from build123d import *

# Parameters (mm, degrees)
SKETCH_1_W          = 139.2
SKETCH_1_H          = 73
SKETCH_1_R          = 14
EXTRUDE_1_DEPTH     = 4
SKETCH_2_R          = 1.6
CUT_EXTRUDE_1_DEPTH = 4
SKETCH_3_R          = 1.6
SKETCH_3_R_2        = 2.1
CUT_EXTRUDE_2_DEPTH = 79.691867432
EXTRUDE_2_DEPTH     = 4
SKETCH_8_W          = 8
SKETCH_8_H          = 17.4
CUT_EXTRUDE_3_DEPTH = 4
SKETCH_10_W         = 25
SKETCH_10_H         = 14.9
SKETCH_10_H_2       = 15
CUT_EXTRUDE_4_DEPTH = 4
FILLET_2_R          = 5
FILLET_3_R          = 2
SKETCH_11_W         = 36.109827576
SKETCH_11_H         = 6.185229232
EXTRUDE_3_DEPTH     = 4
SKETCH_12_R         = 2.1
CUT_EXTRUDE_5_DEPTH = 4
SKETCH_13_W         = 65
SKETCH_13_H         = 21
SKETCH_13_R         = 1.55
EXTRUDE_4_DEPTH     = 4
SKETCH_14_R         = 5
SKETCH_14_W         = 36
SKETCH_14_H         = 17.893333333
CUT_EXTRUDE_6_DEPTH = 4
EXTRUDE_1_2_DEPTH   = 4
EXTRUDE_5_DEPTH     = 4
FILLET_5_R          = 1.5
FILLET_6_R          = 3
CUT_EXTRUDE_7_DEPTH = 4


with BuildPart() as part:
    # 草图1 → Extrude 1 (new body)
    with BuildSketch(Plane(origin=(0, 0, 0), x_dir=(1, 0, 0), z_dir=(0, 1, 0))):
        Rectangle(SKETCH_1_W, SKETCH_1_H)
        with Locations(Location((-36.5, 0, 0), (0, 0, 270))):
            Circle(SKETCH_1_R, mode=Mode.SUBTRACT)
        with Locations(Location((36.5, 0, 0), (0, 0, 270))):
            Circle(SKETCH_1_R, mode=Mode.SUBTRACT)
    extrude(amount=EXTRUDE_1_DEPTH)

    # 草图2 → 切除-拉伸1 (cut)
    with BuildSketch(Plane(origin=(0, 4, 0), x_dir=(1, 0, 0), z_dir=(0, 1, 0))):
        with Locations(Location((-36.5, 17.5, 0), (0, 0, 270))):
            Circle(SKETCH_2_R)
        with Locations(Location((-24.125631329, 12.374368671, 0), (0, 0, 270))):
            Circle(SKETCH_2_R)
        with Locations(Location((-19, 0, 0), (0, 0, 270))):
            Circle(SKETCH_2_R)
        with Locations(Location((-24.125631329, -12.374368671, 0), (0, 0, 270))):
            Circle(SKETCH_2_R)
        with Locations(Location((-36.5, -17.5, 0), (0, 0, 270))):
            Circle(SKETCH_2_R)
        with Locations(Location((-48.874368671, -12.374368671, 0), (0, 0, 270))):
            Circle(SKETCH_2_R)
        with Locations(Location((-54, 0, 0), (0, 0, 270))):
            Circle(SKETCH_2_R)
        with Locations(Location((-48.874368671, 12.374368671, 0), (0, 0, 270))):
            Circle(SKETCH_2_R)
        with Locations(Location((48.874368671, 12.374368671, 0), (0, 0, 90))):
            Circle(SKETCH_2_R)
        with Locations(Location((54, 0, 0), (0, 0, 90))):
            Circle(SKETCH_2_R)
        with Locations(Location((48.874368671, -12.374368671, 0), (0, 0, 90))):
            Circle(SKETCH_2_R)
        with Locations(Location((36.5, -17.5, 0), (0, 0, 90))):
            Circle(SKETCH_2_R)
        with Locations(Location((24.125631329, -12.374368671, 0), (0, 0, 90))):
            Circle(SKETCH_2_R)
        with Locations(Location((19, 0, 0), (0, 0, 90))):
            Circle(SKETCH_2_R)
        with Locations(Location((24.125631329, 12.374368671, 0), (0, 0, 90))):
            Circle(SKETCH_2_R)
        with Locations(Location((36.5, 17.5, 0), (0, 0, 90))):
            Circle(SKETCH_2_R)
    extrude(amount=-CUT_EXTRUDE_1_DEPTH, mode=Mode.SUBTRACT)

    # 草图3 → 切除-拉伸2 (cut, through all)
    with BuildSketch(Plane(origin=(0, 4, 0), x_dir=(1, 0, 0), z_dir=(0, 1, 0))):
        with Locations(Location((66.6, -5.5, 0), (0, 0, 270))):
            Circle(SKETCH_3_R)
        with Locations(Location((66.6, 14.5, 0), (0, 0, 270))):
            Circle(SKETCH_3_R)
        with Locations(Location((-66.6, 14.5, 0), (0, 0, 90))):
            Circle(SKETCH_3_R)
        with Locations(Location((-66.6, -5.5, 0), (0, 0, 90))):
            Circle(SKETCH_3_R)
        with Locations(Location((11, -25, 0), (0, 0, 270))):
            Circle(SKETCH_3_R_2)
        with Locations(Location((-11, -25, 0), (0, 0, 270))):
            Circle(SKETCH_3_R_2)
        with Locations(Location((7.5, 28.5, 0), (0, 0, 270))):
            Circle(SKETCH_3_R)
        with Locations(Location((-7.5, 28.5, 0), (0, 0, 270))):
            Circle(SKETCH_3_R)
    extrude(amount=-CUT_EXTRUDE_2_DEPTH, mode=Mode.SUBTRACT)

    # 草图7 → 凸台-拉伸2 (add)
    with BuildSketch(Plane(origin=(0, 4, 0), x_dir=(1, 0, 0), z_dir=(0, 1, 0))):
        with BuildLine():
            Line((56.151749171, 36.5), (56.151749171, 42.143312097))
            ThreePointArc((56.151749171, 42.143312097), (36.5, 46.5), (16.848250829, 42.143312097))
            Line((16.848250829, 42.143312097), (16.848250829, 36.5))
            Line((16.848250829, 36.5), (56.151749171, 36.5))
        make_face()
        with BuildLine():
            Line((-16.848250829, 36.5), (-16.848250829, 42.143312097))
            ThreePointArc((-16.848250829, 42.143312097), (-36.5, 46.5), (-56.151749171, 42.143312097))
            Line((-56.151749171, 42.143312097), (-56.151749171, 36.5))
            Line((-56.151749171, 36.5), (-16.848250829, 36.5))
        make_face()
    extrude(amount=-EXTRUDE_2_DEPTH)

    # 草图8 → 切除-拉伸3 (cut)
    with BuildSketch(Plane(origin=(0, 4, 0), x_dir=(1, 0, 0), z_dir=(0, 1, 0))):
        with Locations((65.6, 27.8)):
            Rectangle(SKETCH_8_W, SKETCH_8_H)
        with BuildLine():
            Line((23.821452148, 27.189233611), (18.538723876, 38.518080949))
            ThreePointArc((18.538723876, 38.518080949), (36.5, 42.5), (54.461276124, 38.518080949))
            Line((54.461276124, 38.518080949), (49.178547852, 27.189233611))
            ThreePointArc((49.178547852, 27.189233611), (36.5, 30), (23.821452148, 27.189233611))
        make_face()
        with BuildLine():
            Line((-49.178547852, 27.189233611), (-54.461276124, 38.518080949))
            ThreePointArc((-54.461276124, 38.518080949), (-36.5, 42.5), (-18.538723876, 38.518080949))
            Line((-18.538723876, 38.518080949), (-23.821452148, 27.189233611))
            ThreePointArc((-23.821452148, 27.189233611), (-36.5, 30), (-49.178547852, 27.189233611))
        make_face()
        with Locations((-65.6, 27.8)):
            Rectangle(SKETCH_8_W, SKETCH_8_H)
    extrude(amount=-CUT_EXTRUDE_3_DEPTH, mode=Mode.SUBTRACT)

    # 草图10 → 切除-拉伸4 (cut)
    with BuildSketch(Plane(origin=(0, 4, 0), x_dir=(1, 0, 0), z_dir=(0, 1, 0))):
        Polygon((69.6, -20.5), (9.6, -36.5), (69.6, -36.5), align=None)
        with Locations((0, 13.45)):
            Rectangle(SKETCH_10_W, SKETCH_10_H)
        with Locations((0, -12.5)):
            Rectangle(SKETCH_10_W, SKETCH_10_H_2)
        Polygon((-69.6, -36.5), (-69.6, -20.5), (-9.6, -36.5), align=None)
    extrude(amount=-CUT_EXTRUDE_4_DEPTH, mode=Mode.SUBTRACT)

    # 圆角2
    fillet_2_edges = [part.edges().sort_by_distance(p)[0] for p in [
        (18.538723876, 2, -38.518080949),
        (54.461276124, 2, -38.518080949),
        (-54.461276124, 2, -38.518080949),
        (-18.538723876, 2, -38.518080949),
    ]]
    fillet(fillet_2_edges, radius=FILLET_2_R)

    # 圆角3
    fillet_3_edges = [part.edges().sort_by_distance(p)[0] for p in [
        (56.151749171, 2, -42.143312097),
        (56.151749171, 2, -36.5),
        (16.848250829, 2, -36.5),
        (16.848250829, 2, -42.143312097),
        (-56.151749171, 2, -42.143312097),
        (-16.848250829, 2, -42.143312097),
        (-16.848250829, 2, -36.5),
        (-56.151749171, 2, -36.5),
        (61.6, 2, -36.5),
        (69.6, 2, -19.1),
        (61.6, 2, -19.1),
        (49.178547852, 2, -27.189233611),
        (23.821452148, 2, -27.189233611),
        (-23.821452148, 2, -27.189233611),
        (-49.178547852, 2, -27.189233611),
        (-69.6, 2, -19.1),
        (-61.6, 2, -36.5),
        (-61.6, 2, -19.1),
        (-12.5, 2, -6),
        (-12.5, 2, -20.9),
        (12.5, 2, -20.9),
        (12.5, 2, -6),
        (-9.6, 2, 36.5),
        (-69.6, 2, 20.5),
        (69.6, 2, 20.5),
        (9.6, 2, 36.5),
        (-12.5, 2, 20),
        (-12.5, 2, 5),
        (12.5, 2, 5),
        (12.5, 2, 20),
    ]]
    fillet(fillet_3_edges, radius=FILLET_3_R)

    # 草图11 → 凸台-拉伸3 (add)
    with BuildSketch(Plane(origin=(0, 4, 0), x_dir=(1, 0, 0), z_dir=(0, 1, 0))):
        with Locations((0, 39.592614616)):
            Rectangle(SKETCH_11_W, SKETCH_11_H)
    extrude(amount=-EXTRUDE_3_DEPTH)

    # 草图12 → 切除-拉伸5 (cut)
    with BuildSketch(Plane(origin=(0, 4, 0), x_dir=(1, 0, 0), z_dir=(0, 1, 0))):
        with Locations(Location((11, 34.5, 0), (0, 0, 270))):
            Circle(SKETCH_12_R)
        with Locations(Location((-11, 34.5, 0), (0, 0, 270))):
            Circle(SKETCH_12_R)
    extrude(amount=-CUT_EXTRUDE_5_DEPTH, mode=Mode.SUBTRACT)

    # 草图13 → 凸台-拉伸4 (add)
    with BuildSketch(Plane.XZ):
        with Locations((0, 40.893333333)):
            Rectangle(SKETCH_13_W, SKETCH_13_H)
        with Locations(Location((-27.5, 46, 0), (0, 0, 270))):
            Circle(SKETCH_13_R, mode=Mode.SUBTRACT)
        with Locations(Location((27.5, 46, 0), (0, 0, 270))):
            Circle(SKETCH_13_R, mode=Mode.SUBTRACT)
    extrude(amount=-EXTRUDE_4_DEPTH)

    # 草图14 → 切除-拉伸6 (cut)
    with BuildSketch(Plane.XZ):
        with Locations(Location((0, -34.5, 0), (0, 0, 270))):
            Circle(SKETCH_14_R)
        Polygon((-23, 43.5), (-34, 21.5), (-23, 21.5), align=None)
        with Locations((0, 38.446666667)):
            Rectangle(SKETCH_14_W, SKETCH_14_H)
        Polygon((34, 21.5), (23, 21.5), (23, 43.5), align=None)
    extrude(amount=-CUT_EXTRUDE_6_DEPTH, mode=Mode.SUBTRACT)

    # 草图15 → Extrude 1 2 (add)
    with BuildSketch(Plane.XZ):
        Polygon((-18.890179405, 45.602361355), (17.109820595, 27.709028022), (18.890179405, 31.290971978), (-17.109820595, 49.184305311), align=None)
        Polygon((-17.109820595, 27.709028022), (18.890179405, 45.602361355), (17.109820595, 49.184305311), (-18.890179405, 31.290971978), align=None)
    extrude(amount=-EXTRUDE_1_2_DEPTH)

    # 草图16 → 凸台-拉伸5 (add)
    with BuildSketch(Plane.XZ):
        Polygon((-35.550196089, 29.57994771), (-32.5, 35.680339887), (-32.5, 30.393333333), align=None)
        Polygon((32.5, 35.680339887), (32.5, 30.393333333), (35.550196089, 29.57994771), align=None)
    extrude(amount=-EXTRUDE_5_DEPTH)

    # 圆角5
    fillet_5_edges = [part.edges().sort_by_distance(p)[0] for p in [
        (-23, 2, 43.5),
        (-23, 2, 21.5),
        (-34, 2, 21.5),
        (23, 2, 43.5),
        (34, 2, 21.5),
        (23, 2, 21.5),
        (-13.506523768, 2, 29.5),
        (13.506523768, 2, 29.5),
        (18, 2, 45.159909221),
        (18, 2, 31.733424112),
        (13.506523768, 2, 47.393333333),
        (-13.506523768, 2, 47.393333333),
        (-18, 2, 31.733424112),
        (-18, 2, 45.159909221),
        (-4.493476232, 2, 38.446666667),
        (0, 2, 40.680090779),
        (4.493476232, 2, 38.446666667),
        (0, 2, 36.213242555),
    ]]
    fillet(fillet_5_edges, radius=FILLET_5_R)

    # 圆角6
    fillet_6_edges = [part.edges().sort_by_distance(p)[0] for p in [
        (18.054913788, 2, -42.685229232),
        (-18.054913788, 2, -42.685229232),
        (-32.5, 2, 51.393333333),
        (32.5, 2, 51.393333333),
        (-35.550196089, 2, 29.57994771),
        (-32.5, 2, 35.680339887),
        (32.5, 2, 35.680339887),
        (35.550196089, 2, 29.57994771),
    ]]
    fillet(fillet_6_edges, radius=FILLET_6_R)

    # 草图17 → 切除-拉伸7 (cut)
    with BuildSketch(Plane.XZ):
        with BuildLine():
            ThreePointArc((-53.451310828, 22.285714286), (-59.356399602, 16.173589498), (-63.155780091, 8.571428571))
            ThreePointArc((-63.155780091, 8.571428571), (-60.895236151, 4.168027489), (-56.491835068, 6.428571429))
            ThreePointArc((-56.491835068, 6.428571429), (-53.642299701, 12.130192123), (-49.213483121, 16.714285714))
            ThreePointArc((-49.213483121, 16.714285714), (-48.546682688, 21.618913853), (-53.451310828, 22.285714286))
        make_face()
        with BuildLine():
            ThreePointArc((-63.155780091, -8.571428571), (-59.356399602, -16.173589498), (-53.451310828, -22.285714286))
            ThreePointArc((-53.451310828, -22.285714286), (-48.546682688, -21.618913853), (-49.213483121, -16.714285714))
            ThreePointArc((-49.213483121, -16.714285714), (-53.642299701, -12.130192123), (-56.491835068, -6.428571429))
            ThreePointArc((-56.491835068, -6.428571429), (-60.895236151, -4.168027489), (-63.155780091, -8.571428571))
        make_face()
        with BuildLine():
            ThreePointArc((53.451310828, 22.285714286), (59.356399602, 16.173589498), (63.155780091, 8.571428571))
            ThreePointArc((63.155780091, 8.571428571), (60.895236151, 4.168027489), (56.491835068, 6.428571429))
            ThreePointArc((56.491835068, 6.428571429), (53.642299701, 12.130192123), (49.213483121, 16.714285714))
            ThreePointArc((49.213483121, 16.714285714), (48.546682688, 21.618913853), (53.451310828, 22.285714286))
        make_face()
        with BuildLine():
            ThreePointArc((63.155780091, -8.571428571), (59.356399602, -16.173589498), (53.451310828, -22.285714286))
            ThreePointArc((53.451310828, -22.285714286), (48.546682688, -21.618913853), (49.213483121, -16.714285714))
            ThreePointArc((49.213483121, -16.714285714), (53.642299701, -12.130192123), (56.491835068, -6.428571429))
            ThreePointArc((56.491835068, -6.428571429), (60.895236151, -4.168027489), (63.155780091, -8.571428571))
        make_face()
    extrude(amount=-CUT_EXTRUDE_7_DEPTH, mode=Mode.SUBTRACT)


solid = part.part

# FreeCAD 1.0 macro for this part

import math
import FreeCAD as App
import Part
import Sketcher
from FreeCAD import Vector
Q = App.Units.Quantity


def edges_at(feature, points):
    """Names of the edges that pass closest to the given points."""
    edges = feature.Shape.Edges
    near = lambda p: min(range(len(edges)), key=lambda i: edges[i].distToShape(Part.Vertex(*p))[0])
    return sorted({f"Edge{near(p) + 1}" for p in points})


def add_polygon(sketch, points):
    """Adds a closed chain of lines whose ends are joined by coincident constraints."""
    first, n = sketch.GeometryCount, len(points)
    for a, b in zip(points, points[1:] + points[:1]):
        sketch.addGeometry(Part.LineSegment(App.Vector(*a, 0), App.Vector(*b, 0)), False)
    for i in range(n):
        sketch.addConstraint(Sketcher.Constraint("Coincident", first + i, 2, first + (i + 1) % n, 1))

doc = App.newDocument("Part")
body = doc.addObject("PartDesign::Body", "Body")

sketch1 = body.newObject("Sketcher::SketchObject", "Sketch")
sketch1.AttachmentSupport = (doc.getObject("XZ_Plane"), [""])
sketch1.MapMode = "FlatFace"
add_polygon(sketch1, [(-70, -36), (-70, 36), (70, 36), (70, -36)])
sketch1.addGeometry(Part.Circle(Vector(-36, 0, 0), Vector(0, 0, 1), 14), False)
sketch1.addGeometry(Part.Circle(Vector(36, 0, 0), Vector(0, 0, 1), 14), False)
sketch1.addConstraint([
    Sketcher.Constraint("Vertical", 0),
    Sketcher.Constraint("Horizontal", 1),
    Sketcher.Constraint("Vertical", 2),
    Sketcher.Constraint("Horizontal", 3),
    Sketcher.Constraint("Equal", 4, 5),
    Sketcher.Constraint("Symmetric", 4, 3, 5, 3, -1, 1),
    Sketcher.Constraint("Symmetric", 0, 2, 2, 2, -1, 1),
    Sketcher.Constraint("PointOnObject", 4, 3, -1),
    Sketcher.Constraint("Diameter", 4, 28.0),
    Sketcher.Constraint("DistanceY", 0, 1, 0, 2, 73.0),
    Sketcher.Constraint("DistanceX", 1, 1, 1, 2, 139.2),
    Sketcher.Constraint("DistanceX", 4, 3, 5, 3, 73.0),
])
pad1 = body.newObject("PartDesign::Pad", "Pad")
pad1.Profile = sketch1
pad1.Length = 4
pad1.Reversed = True

sketch2 = body.newObject("Sketcher::SketchObject", "Sketch001")
sketch2.AttachmentSupport = (doc.getObject("XZ_Plane"), [""])
sketch2.MapMode = "FlatFace"
sketch2.AttachmentOffset = App.Placement(Vector(0, 0, -4), App.Rotation())
sketch2.addGeometry([
    Part.Circle(Vector(-36.5, -17.5, 0), Vector(0, 0, 1), 1.6),
    Part.Circle(Vector(-24.1, -12.4, 0), Vector(0, 0, 1), 1.6),
    Part.Circle(Vector(-19, 0, 0), Vector(0, 0, 1), 1.6),
    Part.Circle(Vector(-24.1, 12.4, 0), Vector(0, 0, 1), 1.6),
    Part.Circle(Vector(-36.5, 17.5, 0), Vector(0, 0, 1), 1.6),
    Part.Circle(Vector(-48.9, 12.4, 0), Vector(0, 0, 1), 1.6),
    Part.Circle(Vector(-54, 0, 0), Vector(0, 0, 1), 1.6),
    Part.Circle(Vector(-48.9, -12.4, 0), Vector(0, 0, 1), 1.6),
    Part.Circle(Vector(48.9, -12.4, 0), Vector(0, 0, 1), 1.6),
    Part.Circle(Vector(54, 0, 0), Vector(0, 0, 1), 1.6),
    Part.Circle(Vector(48.9, 12.4, 0), Vector(0, 0, 1), 1.6),
    Part.Circle(Vector(36.5, 17.5, 0), Vector(0, 0, 1), 1.6),
    Part.Circle(Vector(24.1, 12.4, 0), Vector(0, 0, 1), 1.6),
    Part.Circle(Vector(19, 0, 0), Vector(0, 0, 1), 1.6),
    Part.Circle(Vector(24.1, -12.4, 0), Vector(0, 0, 1), 1.6),
    Part.Circle(Vector(36.5, -17.5, 0), Vector(0, 0, 1), 1.6),
], False)
sketch2.addConstraint([
    Sketcher.Constraint("Equal", 0, 1),
    Sketcher.Constraint("Equal", 1, 2),
    Sketcher.Constraint("Equal", 2, 3),
    Sketcher.Constraint("Equal", 3, 4),
    Sketcher.Constraint("Equal", 4, 5),
    Sketcher.Constraint("Equal", 5, 6),
    Sketcher.Constraint("Equal", 6, 7),
    Sketcher.Constraint("Equal", 7, 8),
    Sketcher.Constraint("Equal", 8, 9),
    Sketcher.Constraint("Equal", 9, 10),
    Sketcher.Constraint("Equal", 10, 11),
    Sketcher.Constraint("Equal", 11, 12),
    Sketcher.Constraint("Equal", 12, 13),
    Sketcher.Constraint("Equal", 13, 14),
    Sketcher.Constraint("Equal", 14, 15),
    Sketcher.Constraint("Symmetric", 5, 3, 8, 3, -1, 1),
    Sketcher.Constraint("Symmetric", 6, 3, 9, 3, -1, 1),
    Sketcher.Constraint("Symmetric", 7, 3, 10, 3, -1, 1),
    Sketcher.Constraint("Symmetric", 0, 3, 11, 3, -1, 1),
    Sketcher.Constraint("Symmetric", 1, 3, 12, 3, -1, 1),
    Sketcher.Constraint("Symmetric", 2, 3, 13, 3, -1, 1),
    Sketcher.Constraint("Symmetric", 3, 3, 14, 3, -1, 1),
    Sketcher.Constraint("Symmetric", 4, 3, 15, 3, -1, 1),
    Sketcher.Constraint("Symmetric", 7, 3, 8, 3, -2),
    Sketcher.Constraint("Symmetric", 4, 3, 11, 3, -2),
    Sketcher.Constraint("Symmetric", 3, 3, 12, 3, -2),
    Sketcher.Constraint("PointOnObject", 2, 3, -1),
    Sketcher.Constraint("PointOnObject", 6, 3, -1),
    Sketcher.Constraint("Horizontal", 3, 3, 5, 3),
    Sketcher.Constraint("Diameter", 0, 3.2),
    Sketcher.Constraint("DistanceX", 2, 3, -1, 1, 19.0),
    Sketcher.Constraint("DistanceX", 6, 3, -1, 1, 54.0),
    Sketcher.Constraint("DistanceY", 0, 3, 4, 3, 35.0),
    Sketcher.Constraint("DistanceX", 1, 3, 8, 3, 73.0),
    Sketcher.Constraint("DistanceX", 0, 3, -1, 1, 36.5),
    Sketcher.Constraint("DistanceX", 1, 3, -1, 1, 24.125631),
    Sketcher.Constraint("DistanceY", 1, 3, -1, 1, 12.374369),
])
pocket1 = body.newObject("PartDesign::Pocket", "Pocket")
pocket1.Profile = sketch2
pocket1.Length = 4
pocket1.Reversed = True

sketch3 = body.newObject("Sketcher::SketchObject", "Sketch002")
sketch3.AttachmentSupport = (doc.getObject("XZ_Plane"), [""])
sketch3.MapMode = "FlatFace"
sketch3.AttachmentOffset = App.Placement(Vector(0, 0, -4), App.Rotation())
sketch3.addGeometry([
    Part.Circle(Vector(66.6, 5.5, 0), Vector(0, 0, 1), 1.6),
    Part.Circle(Vector(66.6, -14.5, 0), Vector(0, 0, 1), 1.6),
    Part.Circle(Vector(-66.6, -14.5, 0), Vector(0, 0, 1), 1.6),
    Part.Circle(Vector(-66.6, 5.5, 0), Vector(0, 0, 1), 1.6),
    Part.Circle(Vector(11, 25, 0), Vector(0, 0, 1), 2.1),
    Part.Circle(Vector(-11, 25, 0), Vector(0, 0, 1), 2.1),
    Part.Circle(Vector(7.5, -28.5, 0), Vector(0, 0, 1), 1.6),
    Part.Circle(Vector(-7.5, -28.5, 0), Vector(0, 0, 1), 1.6),
], False)
sketch3.addConstraint([
    Sketcher.Constraint("Equal", 0, 1),
    Sketcher.Constraint("Equal", 1, 2),
    Sketcher.Constraint("Equal", 2, 3),
    Sketcher.Constraint("Equal", 4, 5),
    Sketcher.Constraint("Equal", 3, 6),
    Sketcher.Constraint("Equal", 6, 7),
    Sketcher.Constraint("Symmetric", 1, 3, 2, 3, -2),
    Sketcher.Constraint("Symmetric", 0, 3, 3, 3, -2),
    Sketcher.Constraint("Symmetric", 4, 3, 5, 3, -2),
    Sketcher.Constraint("Symmetric", 6, 3, 7, 3, -2),
    Sketcher.Constraint("Vertical", 0, 3, 1, 3),
    Sketcher.Constraint("Diameter", 0, 3.2),
    Sketcher.Constraint("Diameter", 4, 4.2),
    Sketcher.Constraint("DistanceX", -1, 1, 4, 3, 11.0),
    Sketcher.Constraint("DistanceY", -1, 1, 4, 3, 25.0),
    Sketcher.Constraint("DistanceY", 1, 3, 0, 3, 20.0),
    Sketcher.Constraint("DistanceY", 6, 3, 1, 3, 14.0),
    Sketcher.Constraint("DistanceX", 7, 3, 6, 3, 15.0),
    Sketcher.Constraint("DistanceX", -1, 1, 0, 3, 66.6),
    Sketcher.Constraint("DistanceY", -1, 1, 0, 3, 5.5),
])
pocket2 = body.newObject("PartDesign::Pocket", "Pocket001")
pocket2.Profile = sketch3
pocket2.Type = "ThroughAll"
pocket2.Reversed = True

sketch4 = body.newObject("Sketcher::SketchObject", "Sketch003")
sketch4.AttachmentSupport = (doc.getObject("XZ_Plane"), [""])
sketch4.MapMode = "FlatFace"
sketch4.AttachmentOffset = App.Placement(Vector(0, 0, -4), App.Rotation())
sketch4.addGeometry([
    Part.LineSegment(Vector(56, -36, 0), Vector(56, -42, 0)),
    Part.ArcOfCircle(Part.Circle(Vector(36, 0, 0), Vector(0, 0, 1), 46), math.radians(-115), math.radians(-65)),
    Part.LineSegment(Vector(17, -42, 0), Vector(17, -36, 0)),
    Part.LineSegment(Vector(17, -36, 0), Vector(56, -36, 0)),
    Part.LineSegment(Vector(-17, -36, 0), Vector(-17, -42, 0)),
    Part.ArcOfCircle(Part.Circle(Vector(-36, 0, 0), Vector(0, 0, 1), 46), math.radians(-115), math.radians(-65)),
    Part.LineSegment(Vector(-56, -42, 0), Vector(-56, -36, 0)),
    Part.LineSegment(Vector(-56, -36, 0), Vector(-17, -36, 0)),
], False)
sketch4.addConstraint([
    Sketcher.Constraint("Coincident", 0, 2, 1, 2),
    Sketcher.Constraint("Coincident", 1, 1, 2, 1),
    Sketcher.Constraint("Coincident", 2, 2, 3, 1),
    Sketcher.Constraint("Coincident", 3, 2, 0, 1),
    Sketcher.Constraint("Coincident", 4, 2, 5, 2),
    Sketcher.Constraint("Coincident", 5, 1, 6, 1),
    Sketcher.Constraint("Coincident", 6, 2, 7, 1),
    Sketcher.Constraint("Coincident", 7, 2, 4, 1),
    Sketcher.Constraint("Vertical", 0),
    Sketcher.Constraint("Vertical", 2),
    Sketcher.Constraint("Horizontal", 3),
    Sketcher.Constraint("Vertical", 4),
    Sketcher.Constraint("Vertical", 6),
    Sketcher.Constraint("Horizontal", 7),
    Sketcher.Constraint("Equal", 1, 5),
    Sketcher.Constraint("Symmetric", 1, 3, 5, 3, -1, 1),
    Sketcher.Constraint("Symmetric", 1, 1, 4, 2, -2),
    Sketcher.Constraint("Symmetric", 3, 2, 6, 2, -2),
    Sketcher.Constraint("Horizontal", 0, 2, 1, 1),
    Sketcher.Constraint("Radius", 1, 46.5),
    Sketcher.Constraint("DistanceX", 5, 3, 1, 3, 73.0),
    Sketcher.Constraint("DistanceY", 2, 2, -1, 1, 36.5),
    Sketcher.Constraint("DistanceX", 3, 1, 3, 2, 39.303498),
])
pad2 = body.newObject("PartDesign::Pad", "Pad001")
pad2.Profile = sketch4
pad2.Length = 4

sketch5 = body.newObject("Sketcher::SketchObject", "Sketch004")
sketch5.AttachmentSupport = (doc.getObject("XZ_Plane"), [""])
sketch5.MapMode = "FlatFace"
sketch5.AttachmentOffset = App.Placement(Vector(0, 0, -4), App.Rotation())
add_polygon(sketch5, [(62, -36), (62, -19), (70, -19), (70, -36)])
sketch5.addGeometry(Part.LineSegment(Vector(19, -39, 0), Vector(24, -27, 0)), False)
sketch5.addGeometry(Part.ArcOfCircle(Part.Circle(Vector(36, 0, 0), Vector(0, 0, 1), 30), math.radians(-115), math.radians(-65)), False)
sketch5.addGeometry(Part.LineSegment(Vector(49, -27, 0), Vector(54, -39, 0)), False)
sketch5.addGeometry(Part.ArcOfCircle(Part.Circle(Vector(36, 0, 0), Vector(0, 0, 1), 42), math.radians(-115), math.radians(-65)), False)
sketch5.addGeometry(Part.LineSegment(Vector(-54, -39, 0), Vector(-49, -27, 0)), False)
sketch5.addGeometry(Part.ArcOfCircle(Part.Circle(Vector(-36, 0, 0), Vector(0, 0, 1), 30), math.radians(-115), math.radians(-65)), False)
sketch5.addGeometry(Part.LineSegment(Vector(-24, -27, 0), Vector(-19, -39, 0)), False)
sketch5.addGeometry(Part.ArcOfCircle(Part.Circle(Vector(-36, 0, 0), Vector(0, 0, 1), 42), math.radians(-115), math.radians(-65)), False)
add_polygon(sketch5, [(-70, -36), (-70, -19), (-62, -19), (-62, -36)])
sketch5.addConstraint([
    Sketcher.Constraint("Coincident", 4, 2, 5, 1),
    Sketcher.Constraint("Coincident", 5, 2, 6, 1),
    Sketcher.Constraint("Coincident", 6, 2, 7, 2),
    Sketcher.Constraint("Coincident", 7, 1, 4, 1),
    Sketcher.Constraint("Coincident", 8, 2, 9, 1),
    Sketcher.Constraint("Coincident", 9, 2, 10, 1),
    Sketcher.Constraint("Coincident", 10, 2, 11, 2),
    Sketcher.Constraint("Coincident", 11, 1, 8, 1),
    Sketcher.Constraint("Vertical", 0),
    Sketcher.Constraint("Horizontal", 1),
    Sketcher.Constraint("Vertical", 2),
    Sketcher.Constraint("Horizontal", 3),
    Sketcher.Constraint("Vertical", 12),
    Sketcher.Constraint("Horizontal", 13),
    Sketcher.Constraint("Vertical", 14),
    Sketcher.Constraint("Horizontal", 15),
    Sketcher.Constraint("Coincident", 7, 3, 5, 3),
    Sketcher.Constraint("Coincident", 11, 3, 9, 3),
    Sketcher.Constraint("Equal", 5, 9),
    Sketcher.Constraint("Equal", 7, 11),
    Sketcher.Constraint("Symmetric", 5, 3, 9, 3, -1, 1),
    Sketcher.Constraint("Symmetric", 5, 2, 8, 2, -2),
    Sketcher.Constraint("Symmetric", 1, 2, 12, 2, -2),
    Sketcher.Constraint("Symmetric", 3, 2, 14, 2, -2),
    Sketcher.Constraint("Parallel", 4, 8),
    Sketcher.Constraint("Parallel", 6, 10),
    Sketcher.Constraint("Horizontal", 4, 2, 5, 2),
    Sketcher.Constraint("Horizontal", 6, 2, 7, 1),
    Sketcher.Constraint("Horizontal", 8, 2, 9, 2),
    Sketcher.Constraint("Radius", 5, 30.0),
    Sketcher.Constraint("Radius", 7, 42.5),
    Sketcher.Constraint("DistanceX", 1, 1, 1, 2, 8.0),
    Sketcher.Constraint("Angle", 4, Q("65 deg")),
    Sketcher.Constraint("DistanceY", 0, 1, 0, 2, 17.4),
    Sketcher.Constraint("DistanceX", 9, 3, 5, 3, 73.0),
    Sketcher.Constraint("DistanceX", -1, 1, 0, 2, 61.6),
    Sketcher.Constraint("DistanceY", 0, 2, -1, 1, 19.1),
    Sketcher.Constraint("DistanceY", 6, 2, -1, 1, 38.518081),
])
pocket3 = body.newObject("PartDesign::Pocket", "Pocket002")
pocket3.Profile = sketch5
pocket3.Length = 4
pocket3.Reversed = True

sketch6 = body.newObject("Sketcher::SketchObject", "Sketch005")
sketch6.AttachmentSupport = (doc.getObject("XZ_Plane"), [""])
sketch6.MapMode = "FlatFace"
sketch6.AttachmentOffset = App.Placement(Vector(0, 0, -4), App.Rotation())
add_polygon(sketch6, [(70, 20), (10, 36), (70, 36)])
add_polygon(sketch6, [(-12, -21), (-12, -6), (12, -6), (12, -21)])
add_polygon(sketch6, [(-12, 5), (-12, 20), (12, 20), (12, 5)])
add_polygon(sketch6, [(-70, 20), (-70, 36), (-10, 36)])
sketch6.addConstraint([
    Sketcher.Constraint("Horizontal", 1),
    Sketcher.Constraint("Vertical", 2),
    Sketcher.Constraint("Vertical", 3),
    Sketcher.Constraint("Horizontal", 4),
    Sketcher.Constraint("Vertical", 5),
    Sketcher.Constraint("Horizontal", 6),
    Sketcher.Constraint("Vertical", 7),
    Sketcher.Constraint("Horizontal", 8),
    Sketcher.Constraint("Vertical", 9),
    Sketcher.Constraint("Horizontal", 10),
    Sketcher.Constraint("Vertical", 11),
    Sketcher.Constraint("Horizontal", 12),
    Sketcher.Constraint("Symmetric", 1, 2, 11, 2, -2),
    Sketcher.Constraint("Horizontal", 2, 2, 13, 2),
    Sketcher.Constraint("Vertical", 6, 2, 7, 2),
    Sketcher.Constraint("Vertical", 5, 2, 8, 2),
    Sketcher.Constraint("Equal", 1, 12),
    Sketcher.Constraint("DistanceX", 1, 1, 1, 2, 60.0),
    Sketcher.Constraint("DistanceX", 4, 1, 4, 2, 25.0),
    Sketcher.Constraint("DistanceY", 2, 2, 2, 1, 16.0),
    Sketcher.Constraint("DistanceY", 7, 1, 7, 2, 15.0),
    Sketcher.Constraint("DistanceY", 3, 1, 3, 2, 14.9),
    Sketcher.Constraint("DistanceY", 3, 2, -1, 1, 6.0),
    Sketcher.Constraint("DistanceY", -1, 1, 7, 2, 20.0),
    Sketcher.Constraint("DistanceX", -1, 1, 0, 2, 9.6),
    Sketcher.Constraint("DistanceY", -1, 1, 0, 2, 36.5),
    Sketcher.Constraint("DistanceX", 3, 2, -1, 1, 12.5),
])
pocket4 = body.newObject("PartDesign::Pocket", "Pocket003")
pocket4.Profile = sketch6
pocket4.Length = 4
pocket4.Reversed = True
doc.recompute()

fillet = body.newObject("PartDesign::Fillet", "Fillet")
fillet.Base = (pocket4, edges_at(pocket4, [
    (18.539, 2, -38.518),
    (54.461, 2, -38.518),
    (-54.461, 2, -38.518),
    (-18.539, 2, -38.518),
]))
fillet.Radius = 5
doc.recompute()

fillet2 = body.newObject("PartDesign::Fillet", "Fillet001")
fillet2.Base = (fillet, edges_at(fillet, [
    (56.152, 2, -42.143),
    (56.152, 2, -36.5),
    (16.848, 2, -36.5),
    (16.848, 2, -42.143),
    (-56.152, 2, -42.143),
    (-16.848, 2, -42.143),
    (-16.848, 2, -36.5),
    (-56.152, 2, -36.5),
    (61.6, 2, -36.5),
    (69.6, 2, -19.1),
    (61.6, 2, -19.1),
    (49.179, 2, -27.189),
    (23.821, 2, -27.189),
    (-23.821, 2, -27.189),
    (-49.179, 2, -27.189),
    (-69.6, 2, -19.1),
    (-61.6, 2, -36.5),
    (-61.6, 2, -19.1),
    (-12.5, 2, -6),
    (-12.5, 2, -20.9),
    (12.5, 2, -20.9),
    (12.5, 2, -6),
    (-9.6, 2, 36.5),
    (-69.6, 2, 20.5),
    (69.6, 2, 20.5),
    (9.6, 2, 36.5),
    (-12.5, 2, 20),
    (-12.5, 2, 5),
    (12.5, 2, 5),
    (12.5, 2, 20),
]))
fillet2.Radius = 2

sketch7 = body.newObject("Sketcher::SketchObject", "Sketch006")
sketch7.AttachmentSupport = (doc.getObject("XZ_Plane"), [""])
sketch7.MapMode = "FlatFace"
sketch7.AttachmentOffset = App.Placement(Vector(0, 0, -4), App.Rotation())
add_polygon(sketch7, [(-18, -43), (-18, -36), (18, -36), (18, -43)])
sketch7.addConstraint([
    Sketcher.Constraint("Vertical", 0),
    Sketcher.Constraint("Horizontal", 1),
    Sketcher.Constraint("Vertical", 2),
    Sketcher.Constraint("Horizontal", 3),
    Sketcher.Constraint("DistanceY", 0, 2, -1, 1, 36.5),
    Sketcher.Constraint("DistanceY", 0, 1, 0, 2, 6.185229),
    Sketcher.Constraint("DistanceX", 1, 1, 1, 2, 36.109828),
    Sketcher.Constraint("DistanceX", 0, 2, -1, 1, 18.054914),
])
pad3 = body.newObject("PartDesign::Pad", "Pad002")
pad3.Profile = sketch7
pad3.Length = 4

sketch8 = body.newObject("Sketcher::SketchObject", "Sketch007")
sketch8.AttachmentSupport = (doc.getObject("XZ_Plane"), [""])
sketch8.MapMode = "FlatFace"
sketch8.AttachmentOffset = App.Placement(Vector(0, 0, -4), App.Rotation())
sketch8.addGeometry([
    Part.Circle(Vector(11, -34.5, 0), Vector(0, 0, 1), 2.1),
    Part.Circle(Vector(-11, -34.5, 0), Vector(0, 0, 1), 2.1),
], False)
sketch8.addConstraint([
    Sketcher.Constraint("Equal", 0, 1),
    Sketcher.Constraint("Symmetric", 0, 3, 1, 3, -2),
    Sketcher.Constraint("Diameter", 0, 4.2),
    Sketcher.Constraint("DistanceX", -1, 1, 0, 3, 11.0),
    Sketcher.Constraint("DistanceY", 0, 3, -1, 1, 34.5),
])
pocket5 = body.newObject("PartDesign::Pocket", "Pocket004")
pocket5.Profile = sketch8
pocket5.Length = 4
pocket5.Reversed = True

sketch9 = body.newObject("Sketcher::SketchObject", "Sketch008")
sketch9.AttachmentSupport = (doc.getObject("XZ_Plane"), [""])
sketch9.MapMode = "FlatFace"
add_polygon(sketch9, [(-32.5, 51.4), (-32.5, 30.4), (32.5, 30.4), (32.5, 51.4)])
sketch9.addGeometry(Part.Circle(Vector(-27.5, 46, 0), Vector(0, 0, 1), 1.6), False)
sketch9.addGeometry(Part.Circle(Vector(27.5, 46, 0), Vector(0, 0, 1), 1.6), False)
sketch9.addConstraint([
    Sketcher.Constraint("Vertical", 0),
    Sketcher.Constraint("Horizontal", 1),
    Sketcher.Constraint("Vertical", 2),
    Sketcher.Constraint("Horizontal", 3),
    Sketcher.Constraint("Equal", 4, 5),
    Sketcher.Constraint("Symmetric", 4, 3, 5, 3, -2),
    Sketcher.Constraint("Diameter", 4, 3.1),
    Sketcher.Constraint("DistanceX", 1, 1, 1, 2, 65.0),
    Sketcher.Constraint("DistanceY", 0, 2, 0, 1, 21.0),
    Sketcher.Constraint("DistanceY", -1, 1, 4, 3, 46.0),
    Sketcher.Constraint("DistanceX", 4, 3, 5, 3, 55.0),
    Sketcher.Constraint("DistanceX", 0, 2, 4, 3, 5.0),
    Sketcher.Constraint("DistanceY", -1, 1, 0, 2, 30.393333),
])
pad4 = body.newObject("PartDesign::Pad", "Pad003")
pad4.Profile = sketch9
pad4.Length = 4
pad4.Reversed = True

sketch10 = body.newObject("Sketcher::SketchObject", "Sketch009")
sketch10.AttachmentSupport = (doc.getObject("XZ_Plane"), [""])
sketch10.MapMode = "FlatFace"
sketch10.addGeometry(Part.Circle(Vector(0, -34, 0), Vector(0, 0, 1), 5), False)
add_polygon(sketch10, [(-23, 44), (-34, 22), (-23, 22)])
add_polygon(sketch10, [(-18, 47), (-18, 30), (18, 30), (18, 47)])
add_polygon(sketch10, [(23, 22), (34, 22), (23, 44)])
sketch10.addConstraint([
    Sketcher.Constraint("Horizontal", 2),
    Sketcher.Constraint("Vertical", 3),
    Sketcher.Constraint("Vertical", 4),
    Sketcher.Constraint("Horizontal", 5),
    Sketcher.Constraint("Vertical", 6),
    Sketcher.Constraint("Horizontal", 7),
    Sketcher.Constraint("Horizontal", 8),
    Sketcher.Constraint("Vertical", 10),
    Sketcher.Constraint("Symmetric", 1, 2, 8, 2, -2),
    Sketcher.Constraint("Symmetric", 3, 2, 9, 2, -2),
    Sketcher.Constraint("PointOnObject", 0, 3, -2),
    Sketcher.Constraint("Diameter", 0, 10.0),
    Sketcher.Constraint("DistanceX", 2, 1, 2, 2, 11.0),
    Sketcher.Constraint("DistanceX", 5, 1, 5, 2, 36.0),
    Sketcher.Constraint("DistanceY", 3, 1, 3, 2, 22.0),
    Sketcher.Constraint("DistanceX", 1, 2, -1, 1, 34.0),
    Sketcher.Constraint("DistanceX", 4, 2, -1, 1, 18.0),
    Sketcher.Constraint("DistanceY", 0, 3, 1, 2, 56.0),
    Sketcher.Constraint("DistanceY", 2, 2, 4, 2, 8.0),
    Sketcher.Constraint("DistanceY", 0, 3, -1, 1, 34.5),
    Sketcher.Constraint("DistanceY", 4, 2, 4, 1, 17.893333),
])
pocket6 = body.newObject("PartDesign::Pocket", "Pocket005")
pocket6.Profile = sketch10
pocket6.Length = 4

sketch11 = body.newObject("Sketcher::SketchObject", "Sketch010")
sketch11.AttachmentSupport = (doc.getObject("XZ_Plane"), [""])
sketch11.MapMode = "FlatFace"
add_polygon(sketch11, [(-17.1, 49.2), (-18.9, 45.6), (-4.5, 38.4), (-18.9, 31.3), (-17.1, 27.7), (0, 36.2), (17.1, 27.7), (18.9, 31.3), (4.5, 38.4), (18.9, 45.6), (17.1, 49.2), (0, 40.7)])
sketch11.addConstraint([
    Sketcher.Constraint("Symmetric", 3, 2, 5, 2, -2),
    Sketcher.Constraint("Symmetric", 2, 2, 6, 2, -2),
    Sketcher.Constraint("Symmetric", 1, 2, 7, 2, -2),
    Sketcher.Constraint("Symmetric", 0, 2, 8, 2, -2),
    Sketcher.Constraint("Symmetric", 9, 2, 11, 2, -2),
    Sketcher.Constraint("PointOnObject", 4, 2, -2),
    Sketcher.Constraint("PointOnObject", 10, 2, -2),
    Sketcher.Constraint("Perpendicular", 0, 1),
    Sketcher.Constraint("Perpendicular", 2, 3),
    Sketcher.Constraint("Perpendicular", 3, 4),
    Sketcher.Constraint("Parallel", 1, 5),
    Sketcher.Constraint("Perpendicular", 9, 10),
    Sketcher.Constraint("Vertical", 0, 2, 2, 2),
    Sketcher.Constraint("Vertical", 5, 2, 9, 2),
    Sketcher.Constraint("Distance", 0, 4.0),
    Sketcher.Constraint("DistanceX", 2, 2, 5, 2, 36.0),
    Sketcher.Constraint("DistanceX", 0, 2, -1, 1, 18.890179),
    Sketcher.Constraint("DistanceY", -1, 1, 0, 2, 45.602361),
    Sketcher.Constraint("DistanceY", -1, 1, 2, 2, 31.290972),
])
pad5 = body.newObject("PartDesign::Pad", "Pad004")
pad5.Profile = sketch11
pad5.Length = 4
pad5.Reversed = True

sketch12 = body.newObject("Sketcher::SketchObject", "Sketch011")
sketch12.AttachmentSupport = (doc.getObject("XZ_Plane"), [""])
sketch12.MapMode = "FlatFace"
add_polygon(sketch12, [(-32.5, 35.7), (-35.6, 29.6), (-32.5, 30.4)])
add_polygon(sketch12, [(32.5, 35.7), (32.5, 30.4), (35.6, 29.6)])
sketch12.addConstraint([
    Sketcher.Constraint("Vertical", 2),
    Sketcher.Constraint("Vertical", 3),
    Sketcher.Constraint("Symmetric", 1, 2, 3, 2, -2),
    Sketcher.Constraint("Symmetric", 0, 2, 4, 2, -2),
    Sketcher.Constraint("Horizontal", 2, 2, 5, 2),
    Sketcher.Constraint("DistanceX", 1, 2, 3, 2, 65.0),
    Sketcher.Constraint("DistanceY", 2, 1, 2, 2, 5.287007),
    Sketcher.Constraint("DistanceY", -1, 1, 2, 2, 35.68034),
    Sketcher.Constraint("Distance", 0, 6.820446),
    Sketcher.Constraint("Distance", 1, 3.156785),
])
pad6 = body.newObject("PartDesign::Pad", "Pad005")
pad6.Profile = sketch12
pad6.Length = 4
pad6.Reversed = True
doc.recompute()

fillet3 = body.newObject("PartDesign::Fillet", "Fillet002")
fillet3.Base = (pad6, edges_at(pad6, [
    (-23, 2, 43.5),
    (-23, 2, 21.5),
    (-34, 2, 21.5),
    (23, 2, 43.5),
    (34, 2, 21.5),
    (23, 2, 21.5),
    (-13.507, 2, 29.5),
    (13.507, 2, 29.5),
    (18, 2, 45.16),
    (18, 2, 31.733),
    (13.507, 2, 47.393),
    (-13.507, 2, 47.393),
    (-18, 2, 31.733),
    (-18, 2, 45.16),
    (-4.493, 2, 38.447),
    (0, 2, 40.68),
    (4.493, 2, 38.447),
    (0, 2, 36.213),
]))
fillet3.Radius = 1.5
doc.recompute()

fillet4 = body.newObject("PartDesign::Fillet", "Fillet003")
fillet4.Base = (fillet3, edges_at(fillet3, [
    (18.055, 2, -42.685),
    (-18.055, 2, -42.685),
    (-32.5, 2, 51.393),
    (32.5, 2, 51.393),
    (-35.55, 2, 29.58),
    (-32.5, 2, 35.68),
    (32.5, 2, 35.68),
    (35.55, 2, 29.58),
]))
fillet4.Radius = 3

sketch13 = body.newObject("Sketcher::SketchObject", "Sketch012")
sketch13.AttachmentSupport = (doc.getObject("XZ_Plane"), [""])
sketch13.MapMode = "FlatFace"
sketch13.addGeometry([
    Part.ArcOfCircle(Part.Circle(Vector(-36.5, 0, 0), Vector(0, 0, 1), 28), math.radians(127), math.radians(162)),
    Part.ArcOfCircle(Part.Circle(Vector(-59.8, 7.5, 0), Vector(0, 0, 1), 3.5), math.radians(162), math.radians(342)),
    Part.ArcOfCircle(Part.Circle(Vector(-36.5, 0, 0), Vector(0, 0, 1), 21), math.radians(127), math.radians(162)),
    Part.ArcOfCircle(Part.Circle(Vector(-51.3, 19.5, 0), Vector(0, 0, 1), 3.5), math.radians(-53), math.radians(127)),
    Part.ArcOfCircle(Part.Circle(Vector(-36.5, 0, 0), Vector(0, 0, 1), 28), math.radians(-162), math.radians(-127)),
    Part.ArcOfCircle(Part.Circle(Vector(-51.3, -19.5, 0), Vector(0, 0, 1), 3.5), math.radians(-127), math.radians(53)),
    Part.ArcOfCircle(Part.Circle(Vector(-36.5, 0, 0), Vector(0, 0, 1), 21), math.radians(-162), math.radians(-127)),
    Part.ArcOfCircle(Part.Circle(Vector(-59.8, -7.5, 0), Vector(0, 0, 1), 3.5), math.radians(18), math.radians(198)),
    Part.ArcOfCircle(Part.Circle(Vector(36.5, 0, 0), Vector(0, 0, 1), 28), math.radians(18), math.radians(53)),
    Part.ArcOfCircle(Part.Circle(Vector(51.3, 19.5, 0), Vector(0, 0, 1), 3.5), math.radians(53), math.radians(233)),
    Part.ArcOfCircle(Part.Circle(Vector(36.5, 0, 0), Vector(0, 0, 1), 21), math.radians(18), math.radians(53)),
    Part.ArcOfCircle(Part.Circle(Vector(59.8, 7.5, 0), Vector(0, 0, 1), 3.5), math.radians(-162), math.radians(18)),
    Part.ArcOfCircle(Part.Circle(Vector(36.5, 0, 0), Vector(0, 0, 1), 28), math.radians(-53), math.radians(-18)),
    Part.ArcOfCircle(Part.Circle(Vector(59.8, -7.5, 0), Vector(0, 0, 1), 3.5), math.radians(-18), math.radians(162)),
    Part.ArcOfCircle(Part.Circle(Vector(36.5, 0, 0), Vector(0, 0, 1), 21), math.radians(-53), math.radians(-18)),
    Part.ArcOfCircle(Part.Circle(Vector(51.3, -19.5, 0), Vector(0, 0, 1), 3.5), math.radians(127), math.radians(307)),
], False)
sketch13.addConstraint([
    Sketcher.Constraint("Tangent", 0, 2, 1, 1),
    Sketcher.Constraint("Tangent", 1, 2, 2, 2),
    Sketcher.Constraint("Tangent", 2, 1, 3, 1),
    Sketcher.Constraint("Tangent", 3, 2, 0, 1),
    Sketcher.Constraint("Tangent", 4, 2, 5, 1),
    Sketcher.Constraint("Tangent", 5, 2, 6, 2),
    Sketcher.Constraint("Tangent", 6, 1, 7, 1),
    Sketcher.Constraint("Tangent", 7, 2, 4, 1),
    Sketcher.Constraint("Tangent", 8, 2, 9, 1),
    Sketcher.Constraint("Tangent", 9, 2, 10, 2),
    Sketcher.Constraint("Tangent", 10, 1, 11, 1),
    Sketcher.Constraint("Tangent", 11, 2, 8, 1),
    Sketcher.Constraint("Tangent", 12, 2, 13, 1),
    Sketcher.Constraint("Tangent", 13, 2, 14, 2),
    Sketcher.Constraint("Tangent", 14, 1, 15, 1),
    Sketcher.Constraint("Tangent", 15, 2, 12, 1),
    Sketcher.Constraint("Coincident", 2, 3, 0, 3),
    Sketcher.Constraint("Coincident", 4, 3, 0, 3),
    Sketcher.Constraint("Coincident", 6, 3, 0, 3),
    Sketcher.Constraint("Coincident", 10, 3, 8, 3),
    Sketcher.Constraint("Coincident", 12, 3, 8, 3),
    Sketcher.Constraint("Coincident", 14, 3, 8, 3),
    Sketcher.Constraint("Equal", 0, 4),
    Sketcher.Constraint("Equal", 3, 5),
    Sketcher.Constraint("Equal", 4, 8),
    Sketcher.Constraint("Equal", 7, 9),
    Sketcher.Constraint("Equal", 8, 12),
    Sketcher.Constraint("Equal", 11, 13),
    Sketcher.Constraint("Symmetric", 0, 3, 8, 3, -1, 1),
    Sketcher.Constraint("Symmetric", 3, 3, 9, 3, -2),
    Sketcher.Constraint("Horizontal", 1, 3, 11, 3),
    Sketcher.Constraint("Horizontal", 7, 3, 13, 3),
    Sketcher.Constraint("Horizontal", 5, 3, 15, 3),
    Sketcher.Constraint("Vertical", 3, 3, 5, 3),
    Sketcher.Constraint("Vertical", 1, 3, 7, 3),
    Sketcher.Constraint("Radius", 0, 28.0),
    Sketcher.Constraint("Radius", 2, 21.0),
    Sketcher.Constraint("DistanceY", 1, 3, 3, 3, 12.0),
    Sketcher.Constraint("DistanceY", 5, 3, 1, 3, 27.0),
    Sketcher.Constraint("DistanceX", 2, 3, 8, 3, 73.0),
])
pocket7 = body.newObject("PartDesign::Pocket", "Pocket006")
pocket7.Profile = sketch13
pocket7.Length = 4

doc.recompute()
